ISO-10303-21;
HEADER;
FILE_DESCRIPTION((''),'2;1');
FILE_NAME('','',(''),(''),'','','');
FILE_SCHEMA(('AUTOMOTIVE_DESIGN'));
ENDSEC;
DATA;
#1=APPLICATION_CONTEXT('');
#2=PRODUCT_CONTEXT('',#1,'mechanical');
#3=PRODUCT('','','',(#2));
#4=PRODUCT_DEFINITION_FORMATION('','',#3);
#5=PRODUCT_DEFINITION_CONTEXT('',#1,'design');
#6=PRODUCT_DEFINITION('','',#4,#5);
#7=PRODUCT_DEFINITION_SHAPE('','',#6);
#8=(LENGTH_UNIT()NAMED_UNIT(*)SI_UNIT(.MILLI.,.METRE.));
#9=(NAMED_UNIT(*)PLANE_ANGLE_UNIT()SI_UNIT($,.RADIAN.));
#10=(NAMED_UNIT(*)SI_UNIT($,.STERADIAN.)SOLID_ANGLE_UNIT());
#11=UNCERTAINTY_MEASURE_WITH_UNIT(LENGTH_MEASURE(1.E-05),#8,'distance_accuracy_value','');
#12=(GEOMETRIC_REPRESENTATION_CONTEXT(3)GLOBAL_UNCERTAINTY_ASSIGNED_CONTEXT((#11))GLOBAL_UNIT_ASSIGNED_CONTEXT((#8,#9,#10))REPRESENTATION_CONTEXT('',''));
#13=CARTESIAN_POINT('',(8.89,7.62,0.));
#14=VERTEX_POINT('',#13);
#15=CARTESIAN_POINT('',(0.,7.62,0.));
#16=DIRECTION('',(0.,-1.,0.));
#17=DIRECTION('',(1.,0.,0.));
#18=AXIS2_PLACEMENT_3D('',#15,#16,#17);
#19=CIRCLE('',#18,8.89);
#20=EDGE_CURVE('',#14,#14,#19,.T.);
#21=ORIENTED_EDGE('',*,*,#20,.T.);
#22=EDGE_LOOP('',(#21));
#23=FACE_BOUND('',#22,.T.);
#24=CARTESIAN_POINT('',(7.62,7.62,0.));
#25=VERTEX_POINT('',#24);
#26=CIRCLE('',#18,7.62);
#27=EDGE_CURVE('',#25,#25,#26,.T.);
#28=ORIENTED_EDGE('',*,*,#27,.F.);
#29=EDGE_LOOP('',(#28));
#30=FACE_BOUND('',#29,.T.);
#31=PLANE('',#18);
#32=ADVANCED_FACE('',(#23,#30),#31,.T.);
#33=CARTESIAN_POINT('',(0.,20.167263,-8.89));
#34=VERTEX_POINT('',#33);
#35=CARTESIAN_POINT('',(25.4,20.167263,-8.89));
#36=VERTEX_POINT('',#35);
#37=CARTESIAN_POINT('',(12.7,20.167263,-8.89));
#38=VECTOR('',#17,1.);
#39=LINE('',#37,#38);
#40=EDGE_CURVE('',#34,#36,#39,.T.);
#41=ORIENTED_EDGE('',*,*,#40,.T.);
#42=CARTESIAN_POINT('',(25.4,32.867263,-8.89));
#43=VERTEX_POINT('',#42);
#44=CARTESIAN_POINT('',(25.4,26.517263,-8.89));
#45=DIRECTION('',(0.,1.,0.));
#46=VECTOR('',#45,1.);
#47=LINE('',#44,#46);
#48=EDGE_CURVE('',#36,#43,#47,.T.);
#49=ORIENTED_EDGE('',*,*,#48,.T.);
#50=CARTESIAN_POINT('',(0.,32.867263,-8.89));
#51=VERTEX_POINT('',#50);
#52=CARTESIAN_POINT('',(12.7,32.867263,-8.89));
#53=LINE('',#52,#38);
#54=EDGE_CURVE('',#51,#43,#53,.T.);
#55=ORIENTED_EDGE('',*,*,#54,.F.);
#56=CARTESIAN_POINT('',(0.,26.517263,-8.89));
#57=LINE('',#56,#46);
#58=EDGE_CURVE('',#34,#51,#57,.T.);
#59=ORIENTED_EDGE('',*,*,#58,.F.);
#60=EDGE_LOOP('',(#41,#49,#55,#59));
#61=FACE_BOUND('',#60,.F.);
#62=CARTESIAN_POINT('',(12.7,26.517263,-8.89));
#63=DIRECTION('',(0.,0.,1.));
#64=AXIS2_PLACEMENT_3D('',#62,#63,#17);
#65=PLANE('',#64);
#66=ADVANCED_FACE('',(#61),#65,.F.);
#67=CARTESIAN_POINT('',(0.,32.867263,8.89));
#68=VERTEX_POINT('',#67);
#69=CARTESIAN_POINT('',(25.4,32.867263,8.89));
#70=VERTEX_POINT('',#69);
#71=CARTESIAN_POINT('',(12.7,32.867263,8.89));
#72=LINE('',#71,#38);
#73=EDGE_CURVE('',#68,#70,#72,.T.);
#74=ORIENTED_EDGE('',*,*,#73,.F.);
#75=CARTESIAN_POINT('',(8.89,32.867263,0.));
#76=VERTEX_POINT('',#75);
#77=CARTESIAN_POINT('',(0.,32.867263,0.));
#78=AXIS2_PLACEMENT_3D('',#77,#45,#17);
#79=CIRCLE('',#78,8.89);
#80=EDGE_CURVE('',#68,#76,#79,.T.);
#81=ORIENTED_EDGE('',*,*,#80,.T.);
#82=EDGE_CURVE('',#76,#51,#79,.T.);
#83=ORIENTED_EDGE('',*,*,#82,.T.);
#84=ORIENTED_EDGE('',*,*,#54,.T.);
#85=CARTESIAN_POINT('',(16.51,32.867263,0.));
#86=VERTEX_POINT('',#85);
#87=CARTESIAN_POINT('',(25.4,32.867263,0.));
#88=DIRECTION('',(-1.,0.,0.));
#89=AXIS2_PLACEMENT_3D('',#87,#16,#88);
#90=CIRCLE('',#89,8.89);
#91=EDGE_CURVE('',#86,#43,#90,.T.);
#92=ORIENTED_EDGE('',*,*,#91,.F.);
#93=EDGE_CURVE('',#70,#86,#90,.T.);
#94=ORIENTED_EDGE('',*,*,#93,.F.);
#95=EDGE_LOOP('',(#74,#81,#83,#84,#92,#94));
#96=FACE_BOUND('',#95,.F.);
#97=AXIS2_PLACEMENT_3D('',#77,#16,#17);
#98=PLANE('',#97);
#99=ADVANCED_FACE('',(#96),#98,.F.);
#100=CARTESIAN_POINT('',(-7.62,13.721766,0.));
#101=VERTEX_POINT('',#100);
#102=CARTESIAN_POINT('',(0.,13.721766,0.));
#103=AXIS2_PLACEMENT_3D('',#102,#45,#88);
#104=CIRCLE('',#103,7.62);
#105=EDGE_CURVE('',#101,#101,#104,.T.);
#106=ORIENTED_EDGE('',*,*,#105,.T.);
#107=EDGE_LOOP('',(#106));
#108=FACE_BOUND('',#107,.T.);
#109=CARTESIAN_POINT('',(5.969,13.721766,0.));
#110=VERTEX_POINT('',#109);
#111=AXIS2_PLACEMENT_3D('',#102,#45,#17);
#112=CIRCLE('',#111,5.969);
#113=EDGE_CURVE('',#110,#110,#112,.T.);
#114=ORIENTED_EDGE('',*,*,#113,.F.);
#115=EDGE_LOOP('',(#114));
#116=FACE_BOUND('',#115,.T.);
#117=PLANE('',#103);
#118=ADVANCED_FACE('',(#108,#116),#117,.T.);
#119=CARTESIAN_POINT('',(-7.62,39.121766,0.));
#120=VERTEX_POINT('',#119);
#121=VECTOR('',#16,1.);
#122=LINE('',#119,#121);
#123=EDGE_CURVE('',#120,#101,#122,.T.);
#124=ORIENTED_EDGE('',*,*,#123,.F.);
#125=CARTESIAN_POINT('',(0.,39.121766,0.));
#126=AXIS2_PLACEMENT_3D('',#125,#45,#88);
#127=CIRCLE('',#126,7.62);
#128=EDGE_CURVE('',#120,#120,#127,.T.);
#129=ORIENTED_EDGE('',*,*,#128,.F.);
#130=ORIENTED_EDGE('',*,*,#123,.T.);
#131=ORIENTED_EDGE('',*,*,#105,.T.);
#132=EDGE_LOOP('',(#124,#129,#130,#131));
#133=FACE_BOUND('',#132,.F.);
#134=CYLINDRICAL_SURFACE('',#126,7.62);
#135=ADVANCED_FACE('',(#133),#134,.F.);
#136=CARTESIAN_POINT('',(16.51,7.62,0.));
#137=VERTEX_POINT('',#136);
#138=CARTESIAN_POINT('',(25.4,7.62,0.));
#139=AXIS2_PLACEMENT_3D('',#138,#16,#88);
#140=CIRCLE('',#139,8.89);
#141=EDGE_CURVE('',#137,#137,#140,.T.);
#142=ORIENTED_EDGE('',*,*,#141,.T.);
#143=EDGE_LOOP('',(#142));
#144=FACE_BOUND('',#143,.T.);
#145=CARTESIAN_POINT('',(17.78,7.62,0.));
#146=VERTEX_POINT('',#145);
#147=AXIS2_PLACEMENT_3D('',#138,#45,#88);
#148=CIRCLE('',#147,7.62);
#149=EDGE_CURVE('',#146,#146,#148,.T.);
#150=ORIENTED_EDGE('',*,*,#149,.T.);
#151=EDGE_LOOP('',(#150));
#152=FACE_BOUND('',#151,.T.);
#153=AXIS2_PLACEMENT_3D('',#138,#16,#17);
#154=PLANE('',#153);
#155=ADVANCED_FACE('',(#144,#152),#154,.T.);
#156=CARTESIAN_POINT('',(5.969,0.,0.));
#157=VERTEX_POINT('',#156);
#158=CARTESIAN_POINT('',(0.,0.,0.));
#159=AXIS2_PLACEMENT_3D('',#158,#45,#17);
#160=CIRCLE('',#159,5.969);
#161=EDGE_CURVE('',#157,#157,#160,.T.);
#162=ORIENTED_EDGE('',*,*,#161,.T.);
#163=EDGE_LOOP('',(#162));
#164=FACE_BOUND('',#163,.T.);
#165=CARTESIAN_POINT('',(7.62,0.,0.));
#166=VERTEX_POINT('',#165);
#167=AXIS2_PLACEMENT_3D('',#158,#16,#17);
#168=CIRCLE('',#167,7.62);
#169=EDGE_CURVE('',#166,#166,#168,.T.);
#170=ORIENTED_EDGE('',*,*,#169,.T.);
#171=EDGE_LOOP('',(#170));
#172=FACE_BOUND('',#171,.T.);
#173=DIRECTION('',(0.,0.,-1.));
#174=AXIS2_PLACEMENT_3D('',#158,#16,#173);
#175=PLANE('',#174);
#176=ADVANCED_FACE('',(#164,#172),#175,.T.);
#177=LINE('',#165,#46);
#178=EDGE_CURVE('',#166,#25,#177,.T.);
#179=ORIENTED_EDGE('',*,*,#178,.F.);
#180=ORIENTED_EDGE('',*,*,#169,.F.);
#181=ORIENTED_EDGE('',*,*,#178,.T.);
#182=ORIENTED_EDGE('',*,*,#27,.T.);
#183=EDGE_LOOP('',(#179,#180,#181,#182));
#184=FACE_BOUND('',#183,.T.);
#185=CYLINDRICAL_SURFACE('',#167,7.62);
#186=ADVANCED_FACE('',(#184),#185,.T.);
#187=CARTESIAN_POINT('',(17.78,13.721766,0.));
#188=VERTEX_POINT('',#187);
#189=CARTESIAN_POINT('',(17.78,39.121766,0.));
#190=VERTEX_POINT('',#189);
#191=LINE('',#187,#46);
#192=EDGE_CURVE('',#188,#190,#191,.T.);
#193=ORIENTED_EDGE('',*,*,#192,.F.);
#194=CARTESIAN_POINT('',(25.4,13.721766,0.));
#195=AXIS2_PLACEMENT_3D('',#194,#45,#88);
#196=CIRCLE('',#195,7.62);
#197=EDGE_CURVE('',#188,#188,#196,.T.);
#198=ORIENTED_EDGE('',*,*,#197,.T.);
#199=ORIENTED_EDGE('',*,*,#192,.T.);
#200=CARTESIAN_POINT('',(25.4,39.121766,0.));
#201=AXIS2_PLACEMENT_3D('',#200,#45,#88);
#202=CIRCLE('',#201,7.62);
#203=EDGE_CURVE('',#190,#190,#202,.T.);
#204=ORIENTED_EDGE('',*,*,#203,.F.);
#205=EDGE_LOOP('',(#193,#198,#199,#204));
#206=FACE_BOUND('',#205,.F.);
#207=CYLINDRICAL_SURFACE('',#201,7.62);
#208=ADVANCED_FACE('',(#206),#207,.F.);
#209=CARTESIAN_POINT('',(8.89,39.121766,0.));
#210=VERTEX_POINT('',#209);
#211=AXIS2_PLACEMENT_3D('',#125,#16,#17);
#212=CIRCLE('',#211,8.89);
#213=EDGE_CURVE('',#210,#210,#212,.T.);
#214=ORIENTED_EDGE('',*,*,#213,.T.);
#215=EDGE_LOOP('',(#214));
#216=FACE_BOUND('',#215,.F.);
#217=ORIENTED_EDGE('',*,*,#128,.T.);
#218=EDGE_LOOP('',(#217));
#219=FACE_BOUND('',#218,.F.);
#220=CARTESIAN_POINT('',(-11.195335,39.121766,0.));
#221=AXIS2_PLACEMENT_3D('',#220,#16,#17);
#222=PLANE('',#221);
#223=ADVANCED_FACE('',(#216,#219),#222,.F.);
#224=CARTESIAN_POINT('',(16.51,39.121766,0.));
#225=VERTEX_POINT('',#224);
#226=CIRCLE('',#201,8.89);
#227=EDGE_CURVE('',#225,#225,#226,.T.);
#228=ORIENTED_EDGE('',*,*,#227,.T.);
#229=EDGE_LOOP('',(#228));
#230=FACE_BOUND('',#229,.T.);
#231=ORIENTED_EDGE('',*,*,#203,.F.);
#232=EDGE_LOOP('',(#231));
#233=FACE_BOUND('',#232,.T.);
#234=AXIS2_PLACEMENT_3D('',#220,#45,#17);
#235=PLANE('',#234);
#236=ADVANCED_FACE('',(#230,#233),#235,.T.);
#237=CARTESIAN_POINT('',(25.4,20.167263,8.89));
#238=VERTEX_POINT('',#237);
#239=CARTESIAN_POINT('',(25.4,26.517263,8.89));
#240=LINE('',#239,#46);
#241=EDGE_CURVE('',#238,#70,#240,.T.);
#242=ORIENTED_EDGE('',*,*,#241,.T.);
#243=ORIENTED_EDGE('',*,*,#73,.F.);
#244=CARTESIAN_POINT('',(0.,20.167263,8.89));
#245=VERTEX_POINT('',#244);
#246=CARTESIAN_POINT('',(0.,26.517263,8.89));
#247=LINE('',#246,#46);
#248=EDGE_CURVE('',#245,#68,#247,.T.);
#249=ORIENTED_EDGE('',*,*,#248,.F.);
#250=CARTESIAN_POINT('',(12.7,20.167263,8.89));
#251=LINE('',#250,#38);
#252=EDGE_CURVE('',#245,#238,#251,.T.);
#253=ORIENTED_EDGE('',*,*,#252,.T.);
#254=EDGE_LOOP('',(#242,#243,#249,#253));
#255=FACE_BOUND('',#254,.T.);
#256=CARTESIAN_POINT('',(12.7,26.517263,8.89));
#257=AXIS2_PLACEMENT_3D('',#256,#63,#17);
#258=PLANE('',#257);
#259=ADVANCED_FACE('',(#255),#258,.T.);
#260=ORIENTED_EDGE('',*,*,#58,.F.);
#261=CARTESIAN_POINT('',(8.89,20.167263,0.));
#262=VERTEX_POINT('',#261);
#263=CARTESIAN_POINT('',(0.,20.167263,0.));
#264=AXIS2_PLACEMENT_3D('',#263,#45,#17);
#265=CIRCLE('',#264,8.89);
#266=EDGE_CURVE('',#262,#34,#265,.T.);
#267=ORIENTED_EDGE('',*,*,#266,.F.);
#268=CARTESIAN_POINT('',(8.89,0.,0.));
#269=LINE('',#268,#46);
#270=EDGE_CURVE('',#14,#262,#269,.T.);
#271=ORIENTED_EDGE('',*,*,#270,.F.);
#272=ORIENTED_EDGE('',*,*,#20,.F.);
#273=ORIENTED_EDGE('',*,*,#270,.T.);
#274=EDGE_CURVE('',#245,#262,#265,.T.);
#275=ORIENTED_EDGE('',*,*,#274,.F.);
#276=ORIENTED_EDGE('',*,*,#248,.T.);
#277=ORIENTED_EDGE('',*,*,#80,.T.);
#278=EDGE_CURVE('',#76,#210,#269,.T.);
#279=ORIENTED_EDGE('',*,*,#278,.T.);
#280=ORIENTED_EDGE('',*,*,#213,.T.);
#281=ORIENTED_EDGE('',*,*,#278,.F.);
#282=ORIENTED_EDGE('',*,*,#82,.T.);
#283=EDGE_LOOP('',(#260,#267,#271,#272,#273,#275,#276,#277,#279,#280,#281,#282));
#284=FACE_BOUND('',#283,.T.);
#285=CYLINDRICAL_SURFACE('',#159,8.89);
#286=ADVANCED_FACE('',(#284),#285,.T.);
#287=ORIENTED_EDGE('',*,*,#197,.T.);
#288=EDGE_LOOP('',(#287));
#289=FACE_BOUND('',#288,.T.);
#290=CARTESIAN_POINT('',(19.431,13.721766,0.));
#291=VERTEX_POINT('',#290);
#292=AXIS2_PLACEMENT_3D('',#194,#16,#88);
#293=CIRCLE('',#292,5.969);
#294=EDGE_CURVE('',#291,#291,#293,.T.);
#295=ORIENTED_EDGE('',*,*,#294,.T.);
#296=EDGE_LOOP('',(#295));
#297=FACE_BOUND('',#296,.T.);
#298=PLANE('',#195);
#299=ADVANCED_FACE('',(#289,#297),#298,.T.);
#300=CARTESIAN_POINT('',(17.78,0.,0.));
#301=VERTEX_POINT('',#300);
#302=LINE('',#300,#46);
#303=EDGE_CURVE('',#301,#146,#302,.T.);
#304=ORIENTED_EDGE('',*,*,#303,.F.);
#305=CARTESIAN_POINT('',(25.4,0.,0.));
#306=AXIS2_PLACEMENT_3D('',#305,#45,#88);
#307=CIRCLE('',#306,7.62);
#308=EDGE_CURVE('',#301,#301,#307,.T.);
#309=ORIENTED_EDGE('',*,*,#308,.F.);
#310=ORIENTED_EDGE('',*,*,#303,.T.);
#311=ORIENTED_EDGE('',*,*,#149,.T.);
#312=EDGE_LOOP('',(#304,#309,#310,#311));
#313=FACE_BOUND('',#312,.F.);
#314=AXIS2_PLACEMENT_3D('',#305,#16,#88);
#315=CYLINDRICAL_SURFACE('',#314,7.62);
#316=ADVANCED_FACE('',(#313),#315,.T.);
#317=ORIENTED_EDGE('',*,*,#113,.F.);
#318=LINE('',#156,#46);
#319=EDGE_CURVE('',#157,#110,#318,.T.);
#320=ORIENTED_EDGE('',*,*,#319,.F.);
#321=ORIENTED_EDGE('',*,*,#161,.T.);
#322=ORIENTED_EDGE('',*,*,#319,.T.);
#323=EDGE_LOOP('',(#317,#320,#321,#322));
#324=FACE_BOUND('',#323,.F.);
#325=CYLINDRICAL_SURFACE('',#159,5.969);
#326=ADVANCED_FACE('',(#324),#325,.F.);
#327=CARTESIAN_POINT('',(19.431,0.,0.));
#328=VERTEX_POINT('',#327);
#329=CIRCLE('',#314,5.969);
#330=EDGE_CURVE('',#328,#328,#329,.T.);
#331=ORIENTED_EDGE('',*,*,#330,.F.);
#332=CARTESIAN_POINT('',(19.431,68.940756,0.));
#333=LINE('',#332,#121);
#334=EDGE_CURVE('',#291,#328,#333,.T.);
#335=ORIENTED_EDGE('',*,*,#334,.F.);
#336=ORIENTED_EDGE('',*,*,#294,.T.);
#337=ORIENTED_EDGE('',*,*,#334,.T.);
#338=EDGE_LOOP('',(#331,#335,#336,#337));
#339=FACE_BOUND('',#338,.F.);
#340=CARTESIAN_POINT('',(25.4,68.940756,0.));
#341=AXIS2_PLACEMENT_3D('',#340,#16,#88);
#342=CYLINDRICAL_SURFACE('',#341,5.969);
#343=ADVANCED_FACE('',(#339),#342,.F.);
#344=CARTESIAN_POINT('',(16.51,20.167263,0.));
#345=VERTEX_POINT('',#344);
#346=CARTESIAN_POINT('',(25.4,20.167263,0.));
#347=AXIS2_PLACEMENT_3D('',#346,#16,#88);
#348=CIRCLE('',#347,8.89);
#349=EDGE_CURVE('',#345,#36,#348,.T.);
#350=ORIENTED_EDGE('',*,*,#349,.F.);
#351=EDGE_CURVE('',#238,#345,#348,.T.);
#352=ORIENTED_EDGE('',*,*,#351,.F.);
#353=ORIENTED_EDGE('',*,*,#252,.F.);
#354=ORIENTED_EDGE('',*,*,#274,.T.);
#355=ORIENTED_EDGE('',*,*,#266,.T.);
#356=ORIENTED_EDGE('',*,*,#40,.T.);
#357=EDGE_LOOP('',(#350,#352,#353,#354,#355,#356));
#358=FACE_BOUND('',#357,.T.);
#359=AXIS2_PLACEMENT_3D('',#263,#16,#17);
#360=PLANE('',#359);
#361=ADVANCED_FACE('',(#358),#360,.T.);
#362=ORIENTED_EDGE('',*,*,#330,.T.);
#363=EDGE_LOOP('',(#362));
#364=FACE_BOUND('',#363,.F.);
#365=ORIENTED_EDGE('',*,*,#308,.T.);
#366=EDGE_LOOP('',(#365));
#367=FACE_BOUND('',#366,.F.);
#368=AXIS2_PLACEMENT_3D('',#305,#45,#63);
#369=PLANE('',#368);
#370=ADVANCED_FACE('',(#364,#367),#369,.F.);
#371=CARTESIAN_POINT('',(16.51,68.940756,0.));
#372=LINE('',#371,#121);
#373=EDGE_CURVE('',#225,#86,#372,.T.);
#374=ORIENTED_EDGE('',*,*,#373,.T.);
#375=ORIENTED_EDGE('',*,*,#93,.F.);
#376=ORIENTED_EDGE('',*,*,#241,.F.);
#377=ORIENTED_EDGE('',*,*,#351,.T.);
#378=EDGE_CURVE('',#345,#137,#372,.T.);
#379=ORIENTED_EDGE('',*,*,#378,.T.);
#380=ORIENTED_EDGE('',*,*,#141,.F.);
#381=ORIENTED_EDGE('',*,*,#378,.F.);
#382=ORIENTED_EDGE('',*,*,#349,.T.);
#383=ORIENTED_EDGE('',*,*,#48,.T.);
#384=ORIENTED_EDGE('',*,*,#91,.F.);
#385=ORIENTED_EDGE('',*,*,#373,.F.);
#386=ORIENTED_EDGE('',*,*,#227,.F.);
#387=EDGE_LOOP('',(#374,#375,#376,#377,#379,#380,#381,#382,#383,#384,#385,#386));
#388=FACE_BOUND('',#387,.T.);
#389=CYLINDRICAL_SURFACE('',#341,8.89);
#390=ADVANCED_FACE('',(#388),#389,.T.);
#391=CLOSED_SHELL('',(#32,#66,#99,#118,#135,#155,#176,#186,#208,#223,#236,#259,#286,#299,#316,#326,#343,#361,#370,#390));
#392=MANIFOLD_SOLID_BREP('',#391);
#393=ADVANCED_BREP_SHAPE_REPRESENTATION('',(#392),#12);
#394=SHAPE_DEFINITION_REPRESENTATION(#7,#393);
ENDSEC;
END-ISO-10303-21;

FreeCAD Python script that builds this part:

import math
import FreeCAD as App
import Part
import Sketcher
from FreeCAD import Vector
Q = App.Units.Quantity


def add_polygon(sketch, points):
    """Adds a closed chain of lines whose ends are joined by coincident constraints."""
    first, n = sketch.GeometryCount, len(points)
    for a, b in zip(points, points[1:] + points[:1]):
        sketch.addGeometry(Part.LineSegment(App.Vector(*a, 0), App.Vector(*b, 0)), False)
    for i in range(n):
        sketch.addConstraint(Sketcher.Constraint("Coincident", first + i, 2, first + (i + 1) % n, 1))

doc = App.newDocument("Part")
params = doc.addObject("Spreadsheet::Sheet", "Params")
for row, (alias, value) in enumerate([
    ("sketch1_diameter", "0.7 in"),
    ("sketch1_diameter2", "0.47 in"),
    ("sketch2_radius", "0.5 in"),
    ("sketch3_diameter", "0.7 in"),
    ("sketch3_diameter2", "0.6 in"),
    ("pocket1_length", "0.3 in"),
    ("sketch5_diameter", "0.6 in"),
    ("pocket3_length", "1 in"),
    ("sketch6_width", "1 in"),
    ("sketch6_height", "0.5 in"),
    ("pad1_length", "0.35 in"),
    ("pad1_length2", "0.35 in"),
    ("sketch7_diameter", "0.6 in"),
    ("pocket4_length", "1 in"),
], start=1):
    params.set(f"A{row}", alias)
    params.set(f"B{row}", "=" + value)
    params.setAlias(f"B{row}", alias)

body = doc.addObject("PartDesign::Body", "Body")
body.AllowCompound = True

# Sketch on XZ plane
sketch1 = body.newObject("Sketcher::SketchObject", "Sketch")
sketch1.AttachmentSupport = (doc.getObject("XZ_Plane"), [""])
sketch1.MapMode = "FlatFace"
sketch1.addGeometry([
    Part.Circle(Vector(0, 0, 0), Vector(0, 0, 1), 9),
    Part.Circle(Vector(0, 0, 0), Vector(0, 0, 1), 6),
], False)
sketch1.addConstraint([
    Sketcher.Constraint("Coincident", 0, 3, -1, 1),
    Sketcher.Constraint("Coincident", 1, 3, -1, 1),
    Sketcher.Constraint("Diameter", 0, Q("0.7 in")),
    Sketcher.Constraint("Diameter", 1, Q("0.47 in")),
])
sketch1.setExpression("Constraints[2]", "Params.sketch1_diameter")
sketch1.setExpression("Constraints[3]", "Params.sketch1_diameter2")

# Sketch on XY plane
sketch2 = body.newObject("Sketcher::SketchObject", "Sketch001")
sketch2.AttachmentSupport = (doc.getObject("XY_Plane"), [""])
sketch2.MapMode = "FlatFace"
sketch2.addGeometry([
    Part.LineSegment(Vector(0, 0, 0), Vector(0, 69, 0)),
    Part.ArcOfCircle(Part.Circle(Vector(13, 69, 0), Vector(0, 0, 1), 13), math.radians(0), math.radians(180)),
    Part.LineSegment(Vector(25, 69, 0), Vector(25, 0, 0)),
], False)
sketch2.addConstraint([
    Sketcher.Constraint("Tangent", 0, 2, 1, 2),
    Sketcher.Constraint("Tangent", 1, 1, 2, 1),
    Sketcher.Constraint("Vertical", 0),
    Sketcher.Constraint("Vertical", 2),
    Sketcher.Constraint("Coincident", 0, 1, -1, 1),
    Sketcher.Constraint("PointOnObject", 2, 2, -1),
    Sketcher.Constraint("Radius", 1, Q("0.5 in")),
    Sketcher.Constraint("DistanceY", 0, 1, 0, 2, 68.940756),
])
sketch2.setExpression("Constraints[6]", "Params.sketch2_radius")
doc.recompute()

additivepipe = body.newObject("PartDesign::AdditivePipe", "AdditivePipe")
additivepipe.Profile = sketch1
additivepipe.Spine = (sketch2, ["Edge1", "Edge2", "Edge3"])

# Sketch on XZ plane
sketch3 = body.newObject("Sketcher::SketchObject", "Sketch002")
sketch3.AttachmentSupport = (doc.getObject("XZ_Plane"), [""])
sketch3.MapMode = "FlatFace"
sketch3.addGeometry([
    Part.Circle(Vector(0, 0, 0), Vector(0, 0, 1), 9),
    Part.Circle(Vector(0, 0, 0), Vector(0, 0, 1), 8),
    Part.Circle(Vector(25, 0, 0), Vector(0, 0, 1), 9),
    Part.Circle(Vector(25, 0, 0), Vector(0, 0, 1), 8),
], False)
sketch3.addConstraint([
    Sketcher.Constraint("Coincident", 0, 3, -1, 1),
    Sketcher.Constraint("Coincident", 1, 3, -1, 1),
    Sketcher.Constraint("Coincident", 3, 3, 2, 3),
    Sketcher.Constraint("Equal", 0, 2),
    Sketcher.Constraint("Equal", 1, 3),
    Sketcher.Constraint("PointOnObject", 2, 3, -1),
    Sketcher.Constraint("Diameter", 0, Q("0.7 in")),
    Sketcher.Constraint("Diameter", 1, Q("0.6 in")),
    Sketcher.Constraint("DistanceX", -1, 1, 2, 3, Q("1 in")),
])
sketch3.setExpression("Constraints[6]", "Params.sketch3_diameter")
sketch3.setExpression("Constraints[7]", "Params.sketch3_diameter2")
pocket1 = body.newObject("PartDesign::Pocket", "Pocket")
pocket1.Profile = sketch3
pocket1.setExpression("Length", "Params.pocket1_length")

# Sketch on XY plane
sketch4 = body.newObject("Sketcher::SketchObject", "Sketch003")
sketch4.AttachmentSupport = (doc.getObject("XY_Plane"), [""])
sketch4.MapMode = "FlatFace"
add_polygon(sketch4, [(-11, 39), (39, 39), (39, 95), (-11, 95)])  # lines 0-3
sketch4.addConstraint([
    Sketcher.Constraint("Horizontal", 0),
    Sketcher.Constraint("Vertical", 1),
    Sketcher.Constraint("Horizontal", 2),
    Sketcher.Constraint("Vertical", 3),
    Sketcher.Constraint("DistanceX", -1, 1, 0, 2, 39.424099),
    Sketcher.Constraint("DistanceX", 0, 1, 0, 2, 50.619434),
    Sketcher.Constraint("DistanceY", 1, 1, 1, 2, 55.414613),
    Sketcher.Constraint("DistanceY", -1, 1, 1, 2, 94.536379),
])
pocket2 = body.newObject("PartDesign::Pocket", "Pocket001")
pocket2.Profile = sketch4
pocket2.Type = "ThroughAll"
pocket2.Midplane = True

# Sketch on XZ plane
sketch5 = body.newObject("Sketcher::SketchObject", "Sketch004")
sketch5.AttachmentSupport = (doc.getObject("XZ_Plane"), [""])
sketch5.MapMode = "FlatFace"
sketch5.AttachmentOffset = App.Placement(Vector(0, 0, -39.121766), App.Rotation())
sketch5.addGeometry([
    Part.Circle(Vector(0, 0, 0), Vector(0, 0, 1), 8),
    Part.Circle(Vector(25, 0, 0), Vector(0, 0, 1), 8),
], False)
sketch5.addConstraint([
    Sketcher.Constraint("Coincident", 0, 3, -1, 1),
    Sketcher.Constraint("Equal", 0, 1),
    Sketcher.Constraint("PointOnObject", 1, 3, -1),
    Sketcher.Constraint("Diameter", 0, Q("0.6 in")),
    Sketcher.Constraint("DistanceX", -1, 1, 1, 3, Q("1 in")),
])
sketch5.setExpression("Constraints[3]", "Params.sketch5_diameter")
pocket3 = body.newObject("PartDesign::Pocket", "Pocket002")
pocket3.Profile = sketch5
pocket3.setExpression("Length", "Params.pocket3_length")
pocket3.Reversed = True

# Sketch on XY plane
sketch6 = body.newObject("Sketcher::SketchObject", "Sketch005")
sketch6.AttachmentSupport = (doc.getObject("XY_Plane"), [""])
sketch6.MapMode = "FlatFace"
add_polygon(sketch6, [(0, 33), (0, 20), (25, 20), (25, 33)])  # lines 0-3
sketch6.addConstraint([
    Sketcher.Constraint("Vertical", 0),
    Sketcher.Constraint("Horizontal", 1),
    Sketcher.Constraint("Vertical", 2),
    Sketcher.Constraint("Horizontal", 3),
    Sketcher.Constraint("PointOnObject", 0, 2, -2),
    Sketcher.Constraint("DistanceX", 1, 1, 1, 2, Q("1 in")),
    Sketcher.Constraint("DistanceY", 0, 2, 0, 1, Q("0.5 in")),
    Sketcher.Constraint("DistanceY", -1, 1, 0, 2, 20.167263),
])
sketch6.setExpression("Constraints[9]", "Params.sketch6_width")
sketch6.setExpression("Constraints[10]", "Params.sketch6_height")
pad1 = body.newObject("PartDesign::Pad", "Pad")
pad1.Profile = sketch6
pad1.Type = "TwoLengths"
pad1.setExpression("Length", "Params.pad1_length")
pad1.setExpression("Length2", "Params.pad1_length2")

# Sketch on XZ plane
sketch7 = body.newObject("Sketcher::SketchObject", "Sketch006")
sketch7.AttachmentSupport = (doc.getObject("XZ_Plane"), [""])
sketch7.MapMode = "FlatFace"
sketch7.AttachmentOffset = App.Placement(Vector(0, 0, -39.121766), App.Rotation())
sketch7.addGeometry([
    Part.Circle(Vector(25, 0, 0), Vector(0, 0, 1), 8),
    Part.Circle(Vector(0, 0, 0), Vector(0, 0, 1), 8),
], False)
sketch7.addConstraint([
    Sketcher.Constraint("Coincident", 1, 3, -1, 1),
    Sketcher.Constraint("Equal", 0, 1),
    Sketcher.Constraint("PointOnObject", 0, 3, -1),
    Sketcher.Constraint("Diameter", 0, Q("0.6 in")),
    Sketcher.Constraint("DistanceX", -1, 1, 0, 3, Q("1 in")),
])
sketch7.setExpression("Constraints[3]", "Params.sketch7_diameter")
pocket4 = body.newObject("PartDesign::Pocket", "Pocket003")
pocket4.Profile = sketch7
pocket4.setExpression("Length", "Params.pocket4_length")
pocket4.Reversed = True

doc.recompute()
